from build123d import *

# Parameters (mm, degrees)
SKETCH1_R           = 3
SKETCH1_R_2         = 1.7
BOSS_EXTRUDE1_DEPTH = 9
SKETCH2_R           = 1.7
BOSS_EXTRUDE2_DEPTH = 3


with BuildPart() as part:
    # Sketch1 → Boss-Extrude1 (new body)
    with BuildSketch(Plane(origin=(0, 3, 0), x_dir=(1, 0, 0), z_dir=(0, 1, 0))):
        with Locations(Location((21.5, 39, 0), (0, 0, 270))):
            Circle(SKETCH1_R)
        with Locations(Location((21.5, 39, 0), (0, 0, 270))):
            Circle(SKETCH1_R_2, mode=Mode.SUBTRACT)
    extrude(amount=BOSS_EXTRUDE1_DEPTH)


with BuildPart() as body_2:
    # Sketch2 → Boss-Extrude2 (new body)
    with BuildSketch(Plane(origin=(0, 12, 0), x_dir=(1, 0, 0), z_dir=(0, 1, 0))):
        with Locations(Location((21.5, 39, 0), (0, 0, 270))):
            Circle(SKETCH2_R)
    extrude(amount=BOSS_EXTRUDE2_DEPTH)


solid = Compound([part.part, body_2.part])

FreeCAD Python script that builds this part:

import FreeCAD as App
import Part
import Sketcher
Q = App.Units.Quantity

doc = App.newDocument("Part")
params = doc.addObject("Spreadsheet::Sheet", "Params")
for row, (alias, value) in enumerate([
    ("sketch1_diameter", "6 mm"),
    ("sketch1_diameter2", "3.4 mm"),
    ("pad1_length", "9 mm"),
    ("sketch2_diameter", "3.4 mm"),
    ("pad2_length", "3 mm"),
], start=1):
    params.set(f"A{row}", alias)
    params.set(f"B{row}", "=" + value)
    params.setAlias(f"B{row}", alias)

body = doc.addObject("PartDesign::Body", "Body")

# Sketch on XZ plane
sketch1 = body.newObject("Sketcher::SketchObject", "Sketch")
sketch1.AttachmentSupport = (doc.getObject("XZ_Plane"), [""])
sketch1.MapMode = "FlatFace"
sketch1.AttachmentOffset = App.Placement(App.Vector(0, 0, -3), App.Rotation())
sketch1.addGeometry(Part.Circle(App.Vector(21.5, -39, 0), App.Vector(0, 0, 1), 3), False)
sketch1.addGeometry(Part.Circle(App.Vector(21.5, -39, 0), App.Vector(0, 0, 1), 1.7), False)
sketch1.addConstraint(Sketcher.Constraint("Coincident", 1, 3, 0, 3))
sketch1.addConstraint(Sketcher.Constraint("Diameter", 0, Q("6 mm")))
sketch1.addConstraint(Sketcher.Constraint("Diameter", 1, Q("3.4 mm")))
sketch1.addConstraint(Sketcher.Constraint("DistanceY", 0, 3, -1, 1, Q("39 mm")))
sketch1.addConstraint(Sketcher.Constraint("DistanceX", -1, 1, 0, 3, Q("21.5 mm")))
sketch1.setExpression("Constraints[1]", "Params.sketch1_diameter")
sketch1.setExpression("Constraints[2]", "Params.sketch1_diameter2")
pad1 = body.newObject("PartDesign::Pad", "Pad")
pad1.Profile = sketch1
pad1.setExpression("Length", "Params.pad1_length")
pad1.Reversed = True
body2 = doc.addObject("PartDesign::Body", "Body001")

# Sketch on XZ plane
sketch2 = body2.newObject("Sketcher::SketchObject", "Sketch001")
sketch2.AttachmentSupport = (doc.getObject("XZ_Plane001"), [""])
sketch2.MapMode = "FlatFace"
sketch2.AttachmentOffset = App.Placement(App.Vector(0, 0, -12), App.Rotation())
sketch2.addGeometry(Part.Circle(App.Vector(21.5, -39, 0), App.Vector(0, 0, 1), 1.7), False)
sketch2.addConstraint(Sketcher.Constraint("Diameter", 0, Q("3.4 mm")))
sketch2.addConstraint(Sketcher.Constraint("DistanceY", 0, 3, -1, 1, Q("39 mm")))
sketch2.addConstraint(Sketcher.Constraint("DistanceX", -1, 1, 0, 3, Q("21.5 mm")))
sketch2.setExpression("Constraints[0]", "Params.sketch2_diameter")
pad2 = body2.newObject("PartDesign::Pad", "Pad001")
pad2.Profile = sketch2
pad2.setExpression("Length", "Params.pad2_length")
pad2.Reversed = True

doc.recompute()
